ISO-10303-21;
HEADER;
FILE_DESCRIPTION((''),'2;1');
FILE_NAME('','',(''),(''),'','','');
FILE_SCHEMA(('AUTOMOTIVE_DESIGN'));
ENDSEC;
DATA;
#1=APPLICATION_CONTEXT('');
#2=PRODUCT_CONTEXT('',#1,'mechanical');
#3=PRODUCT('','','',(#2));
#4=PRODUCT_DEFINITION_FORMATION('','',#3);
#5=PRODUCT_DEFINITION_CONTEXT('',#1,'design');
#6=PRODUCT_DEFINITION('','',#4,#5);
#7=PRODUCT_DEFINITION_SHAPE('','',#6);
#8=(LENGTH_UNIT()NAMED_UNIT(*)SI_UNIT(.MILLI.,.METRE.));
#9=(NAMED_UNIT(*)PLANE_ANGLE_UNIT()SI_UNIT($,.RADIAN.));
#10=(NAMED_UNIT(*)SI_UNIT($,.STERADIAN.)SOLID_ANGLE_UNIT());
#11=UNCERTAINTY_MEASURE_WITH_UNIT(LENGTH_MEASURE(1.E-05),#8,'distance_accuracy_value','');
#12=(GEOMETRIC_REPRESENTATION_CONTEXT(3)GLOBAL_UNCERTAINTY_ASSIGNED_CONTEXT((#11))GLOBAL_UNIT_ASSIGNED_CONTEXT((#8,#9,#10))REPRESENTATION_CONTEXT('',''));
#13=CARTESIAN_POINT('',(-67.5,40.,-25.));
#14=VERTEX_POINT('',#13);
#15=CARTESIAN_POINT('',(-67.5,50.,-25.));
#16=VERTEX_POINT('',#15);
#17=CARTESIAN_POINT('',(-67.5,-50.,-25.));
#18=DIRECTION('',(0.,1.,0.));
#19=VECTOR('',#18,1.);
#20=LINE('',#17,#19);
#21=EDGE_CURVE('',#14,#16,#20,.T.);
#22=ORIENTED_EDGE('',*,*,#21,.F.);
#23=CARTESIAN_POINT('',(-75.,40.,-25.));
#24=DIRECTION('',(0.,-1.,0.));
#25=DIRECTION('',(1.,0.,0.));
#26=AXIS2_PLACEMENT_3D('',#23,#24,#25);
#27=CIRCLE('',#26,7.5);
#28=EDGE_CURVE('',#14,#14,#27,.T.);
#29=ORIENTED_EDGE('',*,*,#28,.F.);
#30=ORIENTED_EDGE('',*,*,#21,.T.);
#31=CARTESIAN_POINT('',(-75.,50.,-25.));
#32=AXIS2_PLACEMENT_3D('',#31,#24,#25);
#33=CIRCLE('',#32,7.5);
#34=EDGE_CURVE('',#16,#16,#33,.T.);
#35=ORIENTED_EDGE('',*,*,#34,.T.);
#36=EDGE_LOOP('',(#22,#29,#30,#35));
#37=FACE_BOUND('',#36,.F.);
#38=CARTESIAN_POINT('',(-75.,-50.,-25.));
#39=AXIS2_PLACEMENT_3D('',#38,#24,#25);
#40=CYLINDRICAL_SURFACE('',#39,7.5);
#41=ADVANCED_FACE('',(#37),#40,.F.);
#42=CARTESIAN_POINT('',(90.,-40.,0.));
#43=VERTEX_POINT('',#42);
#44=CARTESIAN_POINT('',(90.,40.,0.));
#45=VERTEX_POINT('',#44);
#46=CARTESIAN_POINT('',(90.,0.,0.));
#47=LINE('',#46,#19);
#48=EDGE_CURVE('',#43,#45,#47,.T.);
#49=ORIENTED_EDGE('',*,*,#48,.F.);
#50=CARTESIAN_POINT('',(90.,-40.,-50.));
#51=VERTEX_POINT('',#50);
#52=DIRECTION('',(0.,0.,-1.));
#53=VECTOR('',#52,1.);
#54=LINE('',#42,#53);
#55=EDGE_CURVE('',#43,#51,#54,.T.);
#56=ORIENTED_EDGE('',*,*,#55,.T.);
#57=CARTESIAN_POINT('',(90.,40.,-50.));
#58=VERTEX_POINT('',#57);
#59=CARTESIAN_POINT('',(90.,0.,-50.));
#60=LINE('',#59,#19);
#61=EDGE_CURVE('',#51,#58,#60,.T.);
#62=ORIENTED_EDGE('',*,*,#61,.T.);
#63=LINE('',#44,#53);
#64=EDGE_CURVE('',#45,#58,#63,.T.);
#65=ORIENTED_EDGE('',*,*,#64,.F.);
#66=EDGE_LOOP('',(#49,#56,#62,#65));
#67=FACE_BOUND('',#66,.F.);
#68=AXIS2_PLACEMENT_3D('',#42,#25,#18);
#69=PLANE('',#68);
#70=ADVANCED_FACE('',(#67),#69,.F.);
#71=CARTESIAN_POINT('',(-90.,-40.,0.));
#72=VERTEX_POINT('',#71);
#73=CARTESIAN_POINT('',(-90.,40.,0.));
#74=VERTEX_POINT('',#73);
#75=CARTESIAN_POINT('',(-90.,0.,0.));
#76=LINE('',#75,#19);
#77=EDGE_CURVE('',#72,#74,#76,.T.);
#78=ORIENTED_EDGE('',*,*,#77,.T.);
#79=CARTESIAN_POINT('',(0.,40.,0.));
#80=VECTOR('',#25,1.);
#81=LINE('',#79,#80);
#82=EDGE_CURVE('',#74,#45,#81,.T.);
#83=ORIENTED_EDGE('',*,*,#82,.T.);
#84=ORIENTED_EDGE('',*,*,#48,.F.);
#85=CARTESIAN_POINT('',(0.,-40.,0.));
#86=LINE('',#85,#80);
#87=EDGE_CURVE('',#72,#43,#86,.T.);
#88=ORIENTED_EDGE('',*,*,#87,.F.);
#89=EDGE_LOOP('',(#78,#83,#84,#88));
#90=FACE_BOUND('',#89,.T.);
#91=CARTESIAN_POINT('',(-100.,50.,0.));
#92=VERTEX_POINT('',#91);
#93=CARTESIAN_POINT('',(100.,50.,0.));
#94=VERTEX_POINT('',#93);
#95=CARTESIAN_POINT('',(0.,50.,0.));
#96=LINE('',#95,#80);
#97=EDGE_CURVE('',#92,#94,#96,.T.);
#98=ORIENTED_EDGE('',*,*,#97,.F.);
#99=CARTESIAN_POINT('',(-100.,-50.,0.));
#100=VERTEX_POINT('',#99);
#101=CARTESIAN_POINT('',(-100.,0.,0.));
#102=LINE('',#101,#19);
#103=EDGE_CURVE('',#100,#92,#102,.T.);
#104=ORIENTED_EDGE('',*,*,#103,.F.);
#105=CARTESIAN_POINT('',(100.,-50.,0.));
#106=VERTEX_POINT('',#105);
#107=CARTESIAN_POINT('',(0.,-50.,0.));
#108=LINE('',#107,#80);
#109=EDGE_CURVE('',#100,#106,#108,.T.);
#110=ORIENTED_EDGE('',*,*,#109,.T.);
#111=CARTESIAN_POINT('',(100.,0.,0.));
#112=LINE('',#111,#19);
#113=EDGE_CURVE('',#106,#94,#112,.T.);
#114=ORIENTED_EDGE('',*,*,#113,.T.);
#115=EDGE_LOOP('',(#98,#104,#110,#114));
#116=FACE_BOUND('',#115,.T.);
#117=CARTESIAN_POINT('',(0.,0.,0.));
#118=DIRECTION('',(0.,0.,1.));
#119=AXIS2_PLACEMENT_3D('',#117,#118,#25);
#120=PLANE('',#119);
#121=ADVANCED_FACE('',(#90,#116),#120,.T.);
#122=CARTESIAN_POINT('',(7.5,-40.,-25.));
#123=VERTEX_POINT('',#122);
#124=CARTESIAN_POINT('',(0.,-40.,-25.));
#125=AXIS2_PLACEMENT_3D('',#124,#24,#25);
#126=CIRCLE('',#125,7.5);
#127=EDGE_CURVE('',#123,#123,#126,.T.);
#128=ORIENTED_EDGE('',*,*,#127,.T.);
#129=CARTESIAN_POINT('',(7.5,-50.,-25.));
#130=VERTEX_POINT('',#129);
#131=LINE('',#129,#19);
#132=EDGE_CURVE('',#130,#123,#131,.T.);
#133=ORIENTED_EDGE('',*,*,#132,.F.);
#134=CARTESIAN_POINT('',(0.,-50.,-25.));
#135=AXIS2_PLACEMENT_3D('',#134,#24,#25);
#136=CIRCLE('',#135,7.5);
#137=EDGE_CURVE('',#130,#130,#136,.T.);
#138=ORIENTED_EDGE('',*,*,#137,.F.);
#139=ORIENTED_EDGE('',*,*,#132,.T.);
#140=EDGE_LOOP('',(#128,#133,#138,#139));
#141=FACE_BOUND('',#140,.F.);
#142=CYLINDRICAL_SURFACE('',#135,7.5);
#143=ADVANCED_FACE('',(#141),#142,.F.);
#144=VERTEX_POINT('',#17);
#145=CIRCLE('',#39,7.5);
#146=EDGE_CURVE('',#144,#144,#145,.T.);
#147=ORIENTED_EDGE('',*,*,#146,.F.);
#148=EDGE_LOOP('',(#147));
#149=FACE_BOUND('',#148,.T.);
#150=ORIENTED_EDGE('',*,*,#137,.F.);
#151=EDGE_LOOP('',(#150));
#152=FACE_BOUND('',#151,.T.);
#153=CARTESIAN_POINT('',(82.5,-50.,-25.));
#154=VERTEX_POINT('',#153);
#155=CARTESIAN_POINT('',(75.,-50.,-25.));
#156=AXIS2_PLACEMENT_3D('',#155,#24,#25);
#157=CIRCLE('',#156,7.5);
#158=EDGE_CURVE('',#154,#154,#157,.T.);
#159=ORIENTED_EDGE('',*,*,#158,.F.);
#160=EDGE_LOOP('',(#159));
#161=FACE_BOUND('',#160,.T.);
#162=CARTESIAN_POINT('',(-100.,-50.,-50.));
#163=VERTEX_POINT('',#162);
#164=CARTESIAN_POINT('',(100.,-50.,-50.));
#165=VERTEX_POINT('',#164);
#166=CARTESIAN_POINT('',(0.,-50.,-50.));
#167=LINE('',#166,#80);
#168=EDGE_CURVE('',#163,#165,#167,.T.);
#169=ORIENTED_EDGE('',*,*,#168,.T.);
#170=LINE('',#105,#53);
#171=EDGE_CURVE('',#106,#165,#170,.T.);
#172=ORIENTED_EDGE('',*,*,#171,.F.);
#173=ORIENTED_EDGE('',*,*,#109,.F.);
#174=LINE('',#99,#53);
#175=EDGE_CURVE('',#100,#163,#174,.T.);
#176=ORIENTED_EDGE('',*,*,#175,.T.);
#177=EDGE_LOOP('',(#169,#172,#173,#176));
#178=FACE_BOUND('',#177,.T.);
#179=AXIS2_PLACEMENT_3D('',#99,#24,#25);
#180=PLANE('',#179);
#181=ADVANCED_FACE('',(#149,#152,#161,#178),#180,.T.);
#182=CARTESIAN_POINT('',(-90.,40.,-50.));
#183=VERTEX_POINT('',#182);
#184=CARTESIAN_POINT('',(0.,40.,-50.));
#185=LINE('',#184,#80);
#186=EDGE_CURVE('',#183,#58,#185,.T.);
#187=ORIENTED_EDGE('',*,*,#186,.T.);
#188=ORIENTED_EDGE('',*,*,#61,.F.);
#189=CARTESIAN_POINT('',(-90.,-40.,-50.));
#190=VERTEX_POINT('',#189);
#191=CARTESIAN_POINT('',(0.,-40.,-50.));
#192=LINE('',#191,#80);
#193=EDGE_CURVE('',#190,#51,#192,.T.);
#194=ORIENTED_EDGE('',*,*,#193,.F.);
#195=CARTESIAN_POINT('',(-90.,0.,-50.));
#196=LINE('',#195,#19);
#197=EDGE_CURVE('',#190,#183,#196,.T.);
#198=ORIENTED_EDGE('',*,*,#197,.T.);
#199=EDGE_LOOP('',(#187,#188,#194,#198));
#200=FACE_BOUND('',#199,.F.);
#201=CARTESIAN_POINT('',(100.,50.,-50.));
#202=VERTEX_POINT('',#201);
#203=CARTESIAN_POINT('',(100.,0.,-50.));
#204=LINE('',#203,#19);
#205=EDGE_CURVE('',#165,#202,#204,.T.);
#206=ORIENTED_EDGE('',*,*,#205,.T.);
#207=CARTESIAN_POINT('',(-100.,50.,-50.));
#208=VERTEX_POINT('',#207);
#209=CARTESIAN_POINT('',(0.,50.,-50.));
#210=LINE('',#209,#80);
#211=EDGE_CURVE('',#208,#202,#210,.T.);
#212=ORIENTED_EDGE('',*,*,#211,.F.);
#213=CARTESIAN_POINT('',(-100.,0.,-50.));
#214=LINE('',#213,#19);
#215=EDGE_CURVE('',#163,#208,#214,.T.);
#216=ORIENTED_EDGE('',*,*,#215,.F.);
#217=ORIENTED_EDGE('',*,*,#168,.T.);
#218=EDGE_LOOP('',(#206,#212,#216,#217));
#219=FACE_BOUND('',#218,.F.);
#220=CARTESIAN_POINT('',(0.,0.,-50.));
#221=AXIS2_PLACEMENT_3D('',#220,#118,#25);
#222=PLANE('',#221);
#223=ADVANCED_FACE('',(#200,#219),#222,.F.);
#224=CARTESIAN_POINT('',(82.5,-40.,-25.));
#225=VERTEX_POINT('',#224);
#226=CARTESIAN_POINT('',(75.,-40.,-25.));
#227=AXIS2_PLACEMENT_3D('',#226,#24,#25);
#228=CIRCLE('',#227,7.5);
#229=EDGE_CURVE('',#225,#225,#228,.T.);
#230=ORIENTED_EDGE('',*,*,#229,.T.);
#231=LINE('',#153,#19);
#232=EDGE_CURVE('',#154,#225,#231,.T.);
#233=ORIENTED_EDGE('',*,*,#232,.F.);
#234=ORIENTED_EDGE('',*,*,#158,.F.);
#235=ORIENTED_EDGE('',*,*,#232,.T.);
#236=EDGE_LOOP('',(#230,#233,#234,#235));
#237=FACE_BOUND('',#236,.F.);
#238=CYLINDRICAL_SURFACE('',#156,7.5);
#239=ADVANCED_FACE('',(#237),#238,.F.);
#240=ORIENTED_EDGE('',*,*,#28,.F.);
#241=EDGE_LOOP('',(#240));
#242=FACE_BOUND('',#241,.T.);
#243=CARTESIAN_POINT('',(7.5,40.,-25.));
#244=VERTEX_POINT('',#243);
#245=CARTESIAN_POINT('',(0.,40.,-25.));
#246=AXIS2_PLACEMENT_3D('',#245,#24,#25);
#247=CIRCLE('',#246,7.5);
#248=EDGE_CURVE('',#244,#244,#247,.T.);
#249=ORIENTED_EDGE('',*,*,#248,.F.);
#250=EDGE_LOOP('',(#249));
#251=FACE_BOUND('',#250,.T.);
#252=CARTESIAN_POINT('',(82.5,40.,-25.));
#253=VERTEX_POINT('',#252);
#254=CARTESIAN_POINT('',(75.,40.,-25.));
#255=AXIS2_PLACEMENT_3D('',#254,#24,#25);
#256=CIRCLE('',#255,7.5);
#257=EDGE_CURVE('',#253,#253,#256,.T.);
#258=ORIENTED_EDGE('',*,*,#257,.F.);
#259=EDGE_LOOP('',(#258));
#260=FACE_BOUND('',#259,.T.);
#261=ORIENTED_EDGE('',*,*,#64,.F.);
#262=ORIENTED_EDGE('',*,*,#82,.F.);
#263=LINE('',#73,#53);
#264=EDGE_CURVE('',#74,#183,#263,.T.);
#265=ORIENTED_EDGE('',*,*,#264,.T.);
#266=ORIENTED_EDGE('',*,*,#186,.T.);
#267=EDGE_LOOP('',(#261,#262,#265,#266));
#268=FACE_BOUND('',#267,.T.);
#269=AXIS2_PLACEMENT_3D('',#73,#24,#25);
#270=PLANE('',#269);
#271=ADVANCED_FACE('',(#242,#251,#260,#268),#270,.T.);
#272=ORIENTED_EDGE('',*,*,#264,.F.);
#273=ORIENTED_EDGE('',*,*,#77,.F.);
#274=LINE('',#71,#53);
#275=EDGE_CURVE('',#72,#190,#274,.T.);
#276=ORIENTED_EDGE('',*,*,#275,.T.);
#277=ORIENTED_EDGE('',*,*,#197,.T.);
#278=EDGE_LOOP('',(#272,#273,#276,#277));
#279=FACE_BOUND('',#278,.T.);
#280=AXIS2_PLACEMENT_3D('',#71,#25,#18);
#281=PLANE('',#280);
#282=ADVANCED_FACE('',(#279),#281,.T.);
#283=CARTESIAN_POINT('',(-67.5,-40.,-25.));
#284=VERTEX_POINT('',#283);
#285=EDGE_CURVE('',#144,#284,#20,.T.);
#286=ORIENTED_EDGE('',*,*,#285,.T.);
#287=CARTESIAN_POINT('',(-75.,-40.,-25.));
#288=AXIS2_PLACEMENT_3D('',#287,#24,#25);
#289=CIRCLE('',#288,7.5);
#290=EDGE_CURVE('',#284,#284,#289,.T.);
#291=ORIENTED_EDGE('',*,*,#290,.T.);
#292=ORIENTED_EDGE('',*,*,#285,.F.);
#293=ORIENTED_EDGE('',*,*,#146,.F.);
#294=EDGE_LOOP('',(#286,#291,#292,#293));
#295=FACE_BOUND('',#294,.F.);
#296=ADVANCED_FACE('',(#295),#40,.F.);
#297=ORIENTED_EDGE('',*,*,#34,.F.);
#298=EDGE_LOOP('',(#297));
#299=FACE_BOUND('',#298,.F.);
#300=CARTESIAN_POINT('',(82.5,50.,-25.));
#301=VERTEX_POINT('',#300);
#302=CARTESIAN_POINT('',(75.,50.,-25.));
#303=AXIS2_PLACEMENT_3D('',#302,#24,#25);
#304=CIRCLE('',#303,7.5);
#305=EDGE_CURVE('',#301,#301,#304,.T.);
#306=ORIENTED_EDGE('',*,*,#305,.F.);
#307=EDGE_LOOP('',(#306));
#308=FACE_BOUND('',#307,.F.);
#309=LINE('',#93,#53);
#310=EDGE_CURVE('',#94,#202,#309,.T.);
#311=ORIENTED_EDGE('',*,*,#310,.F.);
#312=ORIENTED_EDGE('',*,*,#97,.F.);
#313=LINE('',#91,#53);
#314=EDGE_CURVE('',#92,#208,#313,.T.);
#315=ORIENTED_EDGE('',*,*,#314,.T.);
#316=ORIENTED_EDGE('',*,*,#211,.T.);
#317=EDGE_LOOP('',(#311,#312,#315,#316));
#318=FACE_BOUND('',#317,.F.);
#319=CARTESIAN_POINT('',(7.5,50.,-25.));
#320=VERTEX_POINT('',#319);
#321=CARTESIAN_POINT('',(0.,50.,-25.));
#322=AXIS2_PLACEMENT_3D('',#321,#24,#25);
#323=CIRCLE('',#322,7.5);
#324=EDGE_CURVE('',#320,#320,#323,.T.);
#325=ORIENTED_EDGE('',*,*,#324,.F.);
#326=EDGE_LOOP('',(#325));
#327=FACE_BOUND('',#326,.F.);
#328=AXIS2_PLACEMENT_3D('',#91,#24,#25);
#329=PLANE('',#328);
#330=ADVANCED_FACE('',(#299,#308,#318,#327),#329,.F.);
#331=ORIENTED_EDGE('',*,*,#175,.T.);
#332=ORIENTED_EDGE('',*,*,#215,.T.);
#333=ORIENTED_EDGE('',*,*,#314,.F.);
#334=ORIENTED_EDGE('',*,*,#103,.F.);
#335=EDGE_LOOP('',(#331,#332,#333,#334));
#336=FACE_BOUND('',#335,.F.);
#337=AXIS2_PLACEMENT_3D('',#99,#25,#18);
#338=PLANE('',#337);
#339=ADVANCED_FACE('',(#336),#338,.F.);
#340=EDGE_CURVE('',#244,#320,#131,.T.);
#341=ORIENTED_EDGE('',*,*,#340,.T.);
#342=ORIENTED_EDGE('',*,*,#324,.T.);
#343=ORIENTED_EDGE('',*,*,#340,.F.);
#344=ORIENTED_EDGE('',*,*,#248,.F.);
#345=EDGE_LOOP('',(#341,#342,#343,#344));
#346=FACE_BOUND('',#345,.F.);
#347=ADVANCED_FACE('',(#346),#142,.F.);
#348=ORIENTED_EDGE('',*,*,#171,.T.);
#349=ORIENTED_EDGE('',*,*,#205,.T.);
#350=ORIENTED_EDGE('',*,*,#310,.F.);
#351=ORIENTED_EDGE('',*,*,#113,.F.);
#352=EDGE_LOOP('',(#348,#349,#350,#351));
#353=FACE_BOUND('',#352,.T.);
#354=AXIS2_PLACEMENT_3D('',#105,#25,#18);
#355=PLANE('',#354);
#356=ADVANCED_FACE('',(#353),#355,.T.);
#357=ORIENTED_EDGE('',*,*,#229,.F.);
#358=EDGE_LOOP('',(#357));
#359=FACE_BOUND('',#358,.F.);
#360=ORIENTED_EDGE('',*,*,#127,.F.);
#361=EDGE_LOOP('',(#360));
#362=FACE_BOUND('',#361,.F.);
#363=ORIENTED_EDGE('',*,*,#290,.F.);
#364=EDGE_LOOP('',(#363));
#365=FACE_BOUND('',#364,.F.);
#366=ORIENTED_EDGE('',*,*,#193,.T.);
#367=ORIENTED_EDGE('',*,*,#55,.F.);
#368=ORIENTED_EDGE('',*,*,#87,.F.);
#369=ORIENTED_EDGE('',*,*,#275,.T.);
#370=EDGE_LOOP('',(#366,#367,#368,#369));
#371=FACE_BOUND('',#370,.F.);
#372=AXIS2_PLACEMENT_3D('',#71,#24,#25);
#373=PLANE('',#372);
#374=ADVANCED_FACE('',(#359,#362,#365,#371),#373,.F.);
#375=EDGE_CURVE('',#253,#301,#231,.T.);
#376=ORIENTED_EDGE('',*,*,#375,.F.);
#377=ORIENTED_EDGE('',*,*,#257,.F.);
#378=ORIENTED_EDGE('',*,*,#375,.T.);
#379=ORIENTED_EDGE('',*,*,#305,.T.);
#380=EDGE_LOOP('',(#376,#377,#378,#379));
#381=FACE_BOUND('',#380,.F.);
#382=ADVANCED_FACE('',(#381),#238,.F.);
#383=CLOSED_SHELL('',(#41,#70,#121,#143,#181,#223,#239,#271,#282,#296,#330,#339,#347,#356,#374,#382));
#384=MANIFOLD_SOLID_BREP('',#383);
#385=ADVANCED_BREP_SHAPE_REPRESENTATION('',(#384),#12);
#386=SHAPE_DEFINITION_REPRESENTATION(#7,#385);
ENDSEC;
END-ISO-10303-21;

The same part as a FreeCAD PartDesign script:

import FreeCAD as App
import Part
import Sketcher

V = App.Vector
Q = App.Units.Quantity

doc = App.newDocument("Part")
body = doc.addObject("PartDesign::Body", "Body")

# Sketch on XY plane
sketch1 = doc.addObject("Sketcher::SketchObject", "Sketch")
body.addObject(sketch1)
sketch1.AttachmentSupport = (doc.XY_Plane, [""])
sketch1.MapMode = "FlatFace"
sketch1.addGeometry([
    Part.LineSegment(V(-100, 50, 0), V(-100, -50, 0)),  # 0
    Part.LineSegment(V(-100, -50, 0), V(100, -50, 0)),  # 1
    Part.LineSegment(V(100, -50, 0), V(100, 50, 0)),  # 2
    Part.LineSegment(V(100, 50, 0), V(-100, 50, 0)),  # 3
    Part.LineSegment(V(90, -40, 0), V(-90, -40, 0)),  # 4
    Part.LineSegment(V(-90, -40, 0), V(-90, 40, 0)),  # 5
    Part.LineSegment(V(-90, 40, 0), V(90, 40, 0)),  # 6
    Part.LineSegment(V(90, 40, 0), V(90, -40, 0)),  # 7
], False)
sketch1.addConstraint([
    Sketcher.Constraint("Coincident", 0, 2, 1, 1),
    Sketcher.Constraint("Coincident", 1, 2, 2, 1),
    Sketcher.Constraint("Coincident", 2, 2, 3, 1),
    Sketcher.Constraint("Coincident", 3, 2, 0, 1),
    Sketcher.Constraint("Coincident", 4, 2, 5, 1),
    Sketcher.Constraint("Coincident", 5, 2, 6, 1),
    Sketcher.Constraint("Coincident", 6, 2, 7, 1),
    Sketcher.Constraint("Coincident", 7, 2, 4, 1),
    Sketcher.Constraint("Vertical", 0),
    Sketcher.Constraint("Horizontal", 1),
    Sketcher.Constraint("Vertical", 2),
    Sketcher.Constraint("Horizontal", 3),
    Sketcher.Constraint("Horizontal", 4),
    Sketcher.Constraint("Vertical", 5),
    Sketcher.Constraint("Horizontal", 6),
    Sketcher.Constraint("Vertical", 7),
    Sketcher.Constraint("Symmetric", 0, 2, 2, 2, -1, 1),
    Sketcher.Constraint("Symmetric", 4, 2, 6, 2, -1, 1),
    Sketcher.Constraint("DistanceX", 1, 1, 1, 2, Q("200 mm")),
    Sketcher.Constraint("DistanceX", 4, 2, 4, 1, Q("180 mm")),
    Sketcher.Constraint("DistanceY", 0, 2, 0, 1, Q("100 mm")),
    Sketcher.Constraint("DistanceY", 5, 1, 5, 2, Q("80 mm")),
])
pad1 = doc.addObject("PartDesign::Pad", "Pad")
body.addObject(pad1)
pad1.Profile = sketch1
pad1.Length = 50
pad1.Reversed = True

# Sketch on XZ plane
sketch2 = doc.addObject("Sketcher::SketchObject", "Sketch001")
body.addObject(sketch2)
sketch2.AttachmentSupport = (doc.XZ_Plane, [""])
sketch2.MapMode = "FlatFace"
sketch2.AttachmentOffset = App.Placement(V(0, 0, 50), App.Rotation())
sketch2.addGeometry([
    Part.Circle(V(0, -25, 0), V(0, 0, 1), 8),
    Part.Circle(V(75, -25, 0), V(0, 0, 1), 8),
    Part.Circle(V(-75, -25, 0), V(0, 0, 1), 8),
], False)
sketch2.addConstraint([
    Sketcher.Constraint("Equal", 0, 1),
    Sketcher.Constraint("Equal", 1, 2),
    Sketcher.Constraint("Symmetric", 1, 3, 2, 3, -2),
    Sketcher.Constraint("PointOnObject", 0, 3, -2),
    Sketcher.Constraint("Horizontal", 0, 3, 1, 3),
    Sketcher.Constraint("Diameter", 0, Q("15 mm")),
    Sketcher.Constraint("DistanceY", 0, 3, -1, 1, Q("25 mm")),
    Sketcher.Constraint("DistanceX", -1, 1, 1, 3, Q("75 mm")),
])
pocket1 = doc.addObject("PartDesign::Pocket", "Pocket")
body.addObject(pocket1)
pocket1.Profile = sketch2
pocket1.Length = 200

doc.recompute()
